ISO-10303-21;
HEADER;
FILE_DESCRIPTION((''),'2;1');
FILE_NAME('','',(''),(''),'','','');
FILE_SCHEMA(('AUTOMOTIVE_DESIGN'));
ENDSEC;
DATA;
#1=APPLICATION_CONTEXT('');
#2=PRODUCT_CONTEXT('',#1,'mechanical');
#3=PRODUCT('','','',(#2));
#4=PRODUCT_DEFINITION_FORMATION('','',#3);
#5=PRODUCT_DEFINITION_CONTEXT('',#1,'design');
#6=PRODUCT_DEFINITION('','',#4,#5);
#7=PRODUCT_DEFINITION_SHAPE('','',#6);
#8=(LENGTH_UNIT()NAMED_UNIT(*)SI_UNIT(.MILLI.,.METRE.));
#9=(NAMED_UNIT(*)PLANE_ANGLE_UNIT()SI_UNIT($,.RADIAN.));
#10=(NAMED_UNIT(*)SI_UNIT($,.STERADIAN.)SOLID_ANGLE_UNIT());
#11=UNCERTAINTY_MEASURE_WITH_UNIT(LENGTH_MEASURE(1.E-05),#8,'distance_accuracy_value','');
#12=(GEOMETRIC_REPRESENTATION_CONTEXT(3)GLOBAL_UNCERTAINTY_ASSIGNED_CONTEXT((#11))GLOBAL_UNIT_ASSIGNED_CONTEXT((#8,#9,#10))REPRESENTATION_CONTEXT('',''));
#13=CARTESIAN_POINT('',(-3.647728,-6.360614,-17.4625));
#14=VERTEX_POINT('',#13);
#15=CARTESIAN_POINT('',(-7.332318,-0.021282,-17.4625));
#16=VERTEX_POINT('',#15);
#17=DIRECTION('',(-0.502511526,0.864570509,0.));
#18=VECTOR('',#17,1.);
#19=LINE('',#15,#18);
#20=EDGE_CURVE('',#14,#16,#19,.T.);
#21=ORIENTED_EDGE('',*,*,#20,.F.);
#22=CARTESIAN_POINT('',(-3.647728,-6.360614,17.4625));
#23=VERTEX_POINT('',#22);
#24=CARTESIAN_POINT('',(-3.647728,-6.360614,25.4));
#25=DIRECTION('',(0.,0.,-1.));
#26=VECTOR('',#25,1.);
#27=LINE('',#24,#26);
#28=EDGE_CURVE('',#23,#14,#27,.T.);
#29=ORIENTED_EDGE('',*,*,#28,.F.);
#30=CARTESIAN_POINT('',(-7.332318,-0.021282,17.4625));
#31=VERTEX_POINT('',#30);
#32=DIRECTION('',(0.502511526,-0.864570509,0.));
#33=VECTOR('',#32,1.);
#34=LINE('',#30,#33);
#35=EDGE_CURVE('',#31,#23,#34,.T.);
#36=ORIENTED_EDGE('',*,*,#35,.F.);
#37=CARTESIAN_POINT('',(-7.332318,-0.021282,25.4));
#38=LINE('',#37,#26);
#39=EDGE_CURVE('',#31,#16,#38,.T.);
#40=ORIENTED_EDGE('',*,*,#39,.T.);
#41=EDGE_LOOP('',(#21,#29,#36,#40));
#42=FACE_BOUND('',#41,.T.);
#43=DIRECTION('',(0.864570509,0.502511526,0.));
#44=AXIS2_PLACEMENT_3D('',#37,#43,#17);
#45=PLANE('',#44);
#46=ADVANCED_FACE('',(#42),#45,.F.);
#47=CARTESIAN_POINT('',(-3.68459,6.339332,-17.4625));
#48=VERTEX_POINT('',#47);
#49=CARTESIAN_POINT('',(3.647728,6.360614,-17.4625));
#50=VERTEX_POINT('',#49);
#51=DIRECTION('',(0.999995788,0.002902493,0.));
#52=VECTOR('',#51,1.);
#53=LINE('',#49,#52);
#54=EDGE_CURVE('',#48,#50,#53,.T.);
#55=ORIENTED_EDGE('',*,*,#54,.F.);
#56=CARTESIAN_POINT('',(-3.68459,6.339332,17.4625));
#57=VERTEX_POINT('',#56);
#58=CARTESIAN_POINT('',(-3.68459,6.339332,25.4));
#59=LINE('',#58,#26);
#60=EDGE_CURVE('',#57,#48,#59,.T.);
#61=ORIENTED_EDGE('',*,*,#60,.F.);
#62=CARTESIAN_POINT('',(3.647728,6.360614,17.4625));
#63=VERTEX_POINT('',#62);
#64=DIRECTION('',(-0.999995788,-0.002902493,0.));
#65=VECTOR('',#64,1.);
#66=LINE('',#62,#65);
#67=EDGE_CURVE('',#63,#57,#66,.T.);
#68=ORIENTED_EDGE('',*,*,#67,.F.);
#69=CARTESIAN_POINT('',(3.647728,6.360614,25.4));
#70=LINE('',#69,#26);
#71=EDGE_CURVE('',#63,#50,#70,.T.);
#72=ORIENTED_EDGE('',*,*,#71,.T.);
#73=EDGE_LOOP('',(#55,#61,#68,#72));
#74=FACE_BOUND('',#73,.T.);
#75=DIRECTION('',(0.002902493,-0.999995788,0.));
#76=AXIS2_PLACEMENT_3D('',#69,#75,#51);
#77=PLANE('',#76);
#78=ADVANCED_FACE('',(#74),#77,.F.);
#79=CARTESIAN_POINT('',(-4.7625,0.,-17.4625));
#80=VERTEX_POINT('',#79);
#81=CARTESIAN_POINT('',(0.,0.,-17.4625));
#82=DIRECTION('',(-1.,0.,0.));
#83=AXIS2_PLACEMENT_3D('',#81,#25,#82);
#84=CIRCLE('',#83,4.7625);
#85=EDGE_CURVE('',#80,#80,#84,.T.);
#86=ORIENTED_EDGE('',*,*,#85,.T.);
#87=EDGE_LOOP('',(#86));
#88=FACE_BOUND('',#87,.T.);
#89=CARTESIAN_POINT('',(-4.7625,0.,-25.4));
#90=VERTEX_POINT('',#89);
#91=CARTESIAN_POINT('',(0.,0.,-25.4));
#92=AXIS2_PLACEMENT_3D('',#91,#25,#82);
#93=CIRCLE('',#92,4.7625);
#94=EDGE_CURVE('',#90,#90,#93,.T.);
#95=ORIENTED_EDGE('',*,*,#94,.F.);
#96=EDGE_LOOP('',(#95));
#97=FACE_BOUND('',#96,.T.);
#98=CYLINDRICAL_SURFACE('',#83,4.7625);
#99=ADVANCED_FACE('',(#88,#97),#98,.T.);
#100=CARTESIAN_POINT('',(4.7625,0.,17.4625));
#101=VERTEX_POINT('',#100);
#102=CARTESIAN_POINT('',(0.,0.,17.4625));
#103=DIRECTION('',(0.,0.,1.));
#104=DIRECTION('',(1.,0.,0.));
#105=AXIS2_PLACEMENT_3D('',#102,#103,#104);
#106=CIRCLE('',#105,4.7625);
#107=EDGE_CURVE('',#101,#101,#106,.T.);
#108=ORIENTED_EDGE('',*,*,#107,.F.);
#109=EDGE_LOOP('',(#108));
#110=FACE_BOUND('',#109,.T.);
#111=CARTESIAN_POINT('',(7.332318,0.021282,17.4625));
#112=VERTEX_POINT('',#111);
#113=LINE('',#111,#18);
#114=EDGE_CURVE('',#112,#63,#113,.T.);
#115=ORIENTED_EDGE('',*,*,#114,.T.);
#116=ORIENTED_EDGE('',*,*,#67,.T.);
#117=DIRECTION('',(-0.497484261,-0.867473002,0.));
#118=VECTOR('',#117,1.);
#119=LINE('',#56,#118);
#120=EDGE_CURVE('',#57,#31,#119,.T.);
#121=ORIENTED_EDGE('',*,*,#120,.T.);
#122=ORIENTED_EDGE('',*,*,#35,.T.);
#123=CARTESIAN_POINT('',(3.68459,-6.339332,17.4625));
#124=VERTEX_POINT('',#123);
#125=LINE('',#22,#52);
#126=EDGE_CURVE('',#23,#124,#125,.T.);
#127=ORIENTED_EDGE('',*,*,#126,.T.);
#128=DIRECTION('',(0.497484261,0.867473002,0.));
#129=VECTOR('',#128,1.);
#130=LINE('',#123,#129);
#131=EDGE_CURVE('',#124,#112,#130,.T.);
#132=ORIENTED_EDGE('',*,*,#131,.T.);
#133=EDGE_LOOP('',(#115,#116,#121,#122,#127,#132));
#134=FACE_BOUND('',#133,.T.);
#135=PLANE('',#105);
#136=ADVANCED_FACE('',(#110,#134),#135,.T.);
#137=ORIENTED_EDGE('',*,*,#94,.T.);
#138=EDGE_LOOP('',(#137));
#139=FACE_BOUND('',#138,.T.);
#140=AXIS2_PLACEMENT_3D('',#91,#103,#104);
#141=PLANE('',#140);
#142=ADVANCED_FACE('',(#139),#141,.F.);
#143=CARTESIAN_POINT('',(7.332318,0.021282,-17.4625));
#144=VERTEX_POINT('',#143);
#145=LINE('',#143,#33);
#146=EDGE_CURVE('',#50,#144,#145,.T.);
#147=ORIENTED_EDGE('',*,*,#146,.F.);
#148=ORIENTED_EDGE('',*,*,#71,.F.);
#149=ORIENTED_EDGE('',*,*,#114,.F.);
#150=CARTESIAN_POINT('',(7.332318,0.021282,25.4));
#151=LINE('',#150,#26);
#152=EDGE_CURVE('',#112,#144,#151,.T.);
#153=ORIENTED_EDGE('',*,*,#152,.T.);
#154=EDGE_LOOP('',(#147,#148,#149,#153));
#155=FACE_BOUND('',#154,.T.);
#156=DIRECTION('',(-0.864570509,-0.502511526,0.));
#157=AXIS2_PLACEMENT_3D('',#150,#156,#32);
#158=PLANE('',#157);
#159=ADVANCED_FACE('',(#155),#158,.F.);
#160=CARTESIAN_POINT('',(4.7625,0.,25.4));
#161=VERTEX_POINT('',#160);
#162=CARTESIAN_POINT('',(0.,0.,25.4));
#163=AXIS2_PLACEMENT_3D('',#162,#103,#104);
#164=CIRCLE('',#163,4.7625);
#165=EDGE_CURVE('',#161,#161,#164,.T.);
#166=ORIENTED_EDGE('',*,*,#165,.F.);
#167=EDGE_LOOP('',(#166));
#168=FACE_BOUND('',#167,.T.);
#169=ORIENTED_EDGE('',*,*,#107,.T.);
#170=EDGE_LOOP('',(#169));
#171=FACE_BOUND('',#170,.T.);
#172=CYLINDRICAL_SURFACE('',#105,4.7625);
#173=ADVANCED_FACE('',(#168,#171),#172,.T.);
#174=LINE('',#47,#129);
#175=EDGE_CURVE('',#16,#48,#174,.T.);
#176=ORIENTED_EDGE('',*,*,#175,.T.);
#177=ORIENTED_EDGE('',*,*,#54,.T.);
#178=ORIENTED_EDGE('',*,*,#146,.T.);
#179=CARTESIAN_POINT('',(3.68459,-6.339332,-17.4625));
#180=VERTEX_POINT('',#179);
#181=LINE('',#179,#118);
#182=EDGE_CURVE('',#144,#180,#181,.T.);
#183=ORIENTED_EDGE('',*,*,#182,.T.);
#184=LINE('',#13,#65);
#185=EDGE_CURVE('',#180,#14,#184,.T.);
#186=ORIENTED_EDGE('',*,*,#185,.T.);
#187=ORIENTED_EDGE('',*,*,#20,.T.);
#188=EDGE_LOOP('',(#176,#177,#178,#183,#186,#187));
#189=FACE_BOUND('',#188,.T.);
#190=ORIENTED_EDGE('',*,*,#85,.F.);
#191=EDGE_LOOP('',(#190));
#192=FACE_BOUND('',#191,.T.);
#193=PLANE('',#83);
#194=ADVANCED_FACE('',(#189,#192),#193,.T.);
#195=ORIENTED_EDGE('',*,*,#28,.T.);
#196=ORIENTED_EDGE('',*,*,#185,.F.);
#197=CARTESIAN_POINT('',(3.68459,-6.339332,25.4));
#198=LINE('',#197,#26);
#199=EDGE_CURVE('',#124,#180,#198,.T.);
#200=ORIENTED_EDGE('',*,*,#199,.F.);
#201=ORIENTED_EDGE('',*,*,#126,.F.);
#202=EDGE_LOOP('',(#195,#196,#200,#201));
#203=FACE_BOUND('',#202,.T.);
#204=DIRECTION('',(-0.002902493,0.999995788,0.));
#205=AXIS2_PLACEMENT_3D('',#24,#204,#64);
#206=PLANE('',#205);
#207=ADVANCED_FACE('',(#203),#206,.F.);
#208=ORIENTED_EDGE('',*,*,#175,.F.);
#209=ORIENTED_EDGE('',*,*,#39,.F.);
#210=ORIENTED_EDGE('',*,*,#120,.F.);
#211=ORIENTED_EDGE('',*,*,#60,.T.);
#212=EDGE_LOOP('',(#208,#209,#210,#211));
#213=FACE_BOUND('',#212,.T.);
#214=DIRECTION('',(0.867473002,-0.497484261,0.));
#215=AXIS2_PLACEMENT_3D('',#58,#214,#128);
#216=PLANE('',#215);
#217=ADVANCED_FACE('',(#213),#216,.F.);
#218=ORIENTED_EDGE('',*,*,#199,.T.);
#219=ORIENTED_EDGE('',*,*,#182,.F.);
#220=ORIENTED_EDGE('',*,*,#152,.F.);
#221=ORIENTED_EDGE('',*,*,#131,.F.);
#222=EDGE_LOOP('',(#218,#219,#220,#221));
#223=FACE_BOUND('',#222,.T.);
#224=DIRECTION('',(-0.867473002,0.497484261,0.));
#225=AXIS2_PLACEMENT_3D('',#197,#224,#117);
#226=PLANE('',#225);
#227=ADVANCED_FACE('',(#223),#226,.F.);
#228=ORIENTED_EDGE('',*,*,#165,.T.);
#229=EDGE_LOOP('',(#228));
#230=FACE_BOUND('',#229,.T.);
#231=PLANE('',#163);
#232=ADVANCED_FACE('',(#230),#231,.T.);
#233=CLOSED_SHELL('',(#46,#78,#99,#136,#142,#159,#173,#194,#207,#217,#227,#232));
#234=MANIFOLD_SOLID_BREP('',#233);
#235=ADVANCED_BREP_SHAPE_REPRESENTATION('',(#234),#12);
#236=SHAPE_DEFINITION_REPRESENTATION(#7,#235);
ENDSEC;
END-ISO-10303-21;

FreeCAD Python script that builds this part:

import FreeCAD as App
import Part
import Sketcher
Q = App.Units.Quantity

doc = App.newDocument("Part")
body = doc.addObject("PartDesign::Body", "Body")

sketch1 = doc.addObject("Sketcher::SketchObject", "Sketch")
body.addObject(sketch1)
sketch1.AttachmentSupport = (doc.XY_Plane, [""])
sketch1.MapMode = "FlatFace"
sketch1.addGeometry([
    Part.LineSegment(App.Vector(4, -6, 0), App.Vector(7, 0, 0)),
    Part.LineSegment(App.Vector(7, 0, 0), App.Vector(4, 6, 0)),
    Part.LineSegment(App.Vector(4, 6, 0), App.Vector(-4, 6, 0)),
    Part.LineSegment(App.Vector(-4, 6, 0), App.Vector(-7, 0, 0)),
    Part.LineSegment(App.Vector(-7, 0, 0), App.Vector(-4, -6, 0)),
    Part.LineSegment(App.Vector(-4, -6, 0), App.Vector(4, -6, 0)),
], False)
sketch1.addConstraint([
    Sketcher.Constraint("Coincident", 0, 2, 1, 1),
    Sketcher.Constraint("Coincident", 1, 2, 2, 1),
    Sketcher.Constraint("Coincident", 2, 2, 3, 1),
    Sketcher.Constraint("Coincident", 3, 2, 4, 1),
    Sketcher.Constraint("Coincident", 4, 2, 5, 1),
    Sketcher.Constraint("Coincident", 5, 2, 0, 1),
    Sketcher.Constraint("Symmetric", 0, 2, 3, 2, -1, 1),
    Sketcher.Constraint("Symmetric", 1, 2, 4, 2, -1, 1),
    Sketcher.Constraint("Symmetric", 2, 2, 5, 2, -1, 1),
    Sketcher.Constraint("Equal", 0, 1),
    Sketcher.Constraint("Equal", 1, 2),
    Sketcher.Constraint("Distance", 0, 7.332348),
    Sketcher.Constraint("DistanceX", 2, 2, -1, 1, 3.68459),
    Sketcher.Constraint("DistanceX", 1, 2, 0, 2, 3.68459),
    Sketcher.Constraint("DistanceY", 0, 2, 2, 2, 6.31805),
])
pad1 = doc.addObject("PartDesign::Pad", "Pad")
body.addObject(pad1)
pad1.Profile = sketch1
pad1.Length = Q("2 in")
pad1.Midplane = True

sketch2 = doc.addObject("Sketcher::SketchObject", "Sketch001")
body.addObject(sketch2)
sketch2.AttachmentSupport = (doc.XY_Plane, [""])
sketch2.MapMode = "FlatFace"
sketch2.AttachmentOffset = App.Placement(App.Vector(0, 0, 1 * 25.4), App.Rotation())
sketch2.addGeometry([
    Part.Circle(App.Vector(0, 0, 0), App.Vector(0, 0, 1), 7.3),
    Part.Circle(App.Vector(0, 0, 0), App.Vector(0, 0, 1), 4.8),
], False)
sketch2.addConstraint([
    Sketcher.Constraint("Coincident", 0, 3, -1, 1),
    Sketcher.Constraint("Coincident", 1, 3, -1, 1),
    Sketcher.Constraint("Diameter", 1, Q("0.375 in")),
    Sketcher.Constraint("Diameter", 0, 14.664697),
])
pocket1 = doc.addObject("PartDesign::Pocket", "Pocket")
body.addObject(pocket1)
pocket1.Profile = sketch2
pocket1.Length = Q("0.3125 in")

sketch3 = doc.addObject("Sketcher::SketchObject", "Sketch002")
body.addObject(sketch3)
sketch3.AttachmentSupport = (doc.XY_Plane, [""])
sketch3.MapMode = "FlatFace"
sketch3.AttachmentOffset = App.Placement(App.Vector(0, 0, -0.6875 * 25.4), App.Rotation())
sketch3.addGeometry([
    Part.Circle(App.Vector(0, 0, 0), App.Vector(0, 0, 1), 7.3),
    Part.Circle(App.Vector(0, 0, 0), App.Vector(0, 0, 1), 4.8),
], False)
sketch3.addConstraint([
    Sketcher.Constraint("Coincident", 0, 3, -1, 1),
    Sketcher.Constraint("Coincident", 1, 3, -1, 1),
    Sketcher.Constraint("Diameter", 1, Q("0.375 in")),
    Sketcher.Constraint("Diameter", 0, 14.664697),
])
pocket2 = doc.addObject("PartDesign::Pocket", "Pocket001")
body.addObject(pocket2)
pocket2.Profile = sketch3
pocket2.Length = Q("0.3125 in")

doc.recompute()
